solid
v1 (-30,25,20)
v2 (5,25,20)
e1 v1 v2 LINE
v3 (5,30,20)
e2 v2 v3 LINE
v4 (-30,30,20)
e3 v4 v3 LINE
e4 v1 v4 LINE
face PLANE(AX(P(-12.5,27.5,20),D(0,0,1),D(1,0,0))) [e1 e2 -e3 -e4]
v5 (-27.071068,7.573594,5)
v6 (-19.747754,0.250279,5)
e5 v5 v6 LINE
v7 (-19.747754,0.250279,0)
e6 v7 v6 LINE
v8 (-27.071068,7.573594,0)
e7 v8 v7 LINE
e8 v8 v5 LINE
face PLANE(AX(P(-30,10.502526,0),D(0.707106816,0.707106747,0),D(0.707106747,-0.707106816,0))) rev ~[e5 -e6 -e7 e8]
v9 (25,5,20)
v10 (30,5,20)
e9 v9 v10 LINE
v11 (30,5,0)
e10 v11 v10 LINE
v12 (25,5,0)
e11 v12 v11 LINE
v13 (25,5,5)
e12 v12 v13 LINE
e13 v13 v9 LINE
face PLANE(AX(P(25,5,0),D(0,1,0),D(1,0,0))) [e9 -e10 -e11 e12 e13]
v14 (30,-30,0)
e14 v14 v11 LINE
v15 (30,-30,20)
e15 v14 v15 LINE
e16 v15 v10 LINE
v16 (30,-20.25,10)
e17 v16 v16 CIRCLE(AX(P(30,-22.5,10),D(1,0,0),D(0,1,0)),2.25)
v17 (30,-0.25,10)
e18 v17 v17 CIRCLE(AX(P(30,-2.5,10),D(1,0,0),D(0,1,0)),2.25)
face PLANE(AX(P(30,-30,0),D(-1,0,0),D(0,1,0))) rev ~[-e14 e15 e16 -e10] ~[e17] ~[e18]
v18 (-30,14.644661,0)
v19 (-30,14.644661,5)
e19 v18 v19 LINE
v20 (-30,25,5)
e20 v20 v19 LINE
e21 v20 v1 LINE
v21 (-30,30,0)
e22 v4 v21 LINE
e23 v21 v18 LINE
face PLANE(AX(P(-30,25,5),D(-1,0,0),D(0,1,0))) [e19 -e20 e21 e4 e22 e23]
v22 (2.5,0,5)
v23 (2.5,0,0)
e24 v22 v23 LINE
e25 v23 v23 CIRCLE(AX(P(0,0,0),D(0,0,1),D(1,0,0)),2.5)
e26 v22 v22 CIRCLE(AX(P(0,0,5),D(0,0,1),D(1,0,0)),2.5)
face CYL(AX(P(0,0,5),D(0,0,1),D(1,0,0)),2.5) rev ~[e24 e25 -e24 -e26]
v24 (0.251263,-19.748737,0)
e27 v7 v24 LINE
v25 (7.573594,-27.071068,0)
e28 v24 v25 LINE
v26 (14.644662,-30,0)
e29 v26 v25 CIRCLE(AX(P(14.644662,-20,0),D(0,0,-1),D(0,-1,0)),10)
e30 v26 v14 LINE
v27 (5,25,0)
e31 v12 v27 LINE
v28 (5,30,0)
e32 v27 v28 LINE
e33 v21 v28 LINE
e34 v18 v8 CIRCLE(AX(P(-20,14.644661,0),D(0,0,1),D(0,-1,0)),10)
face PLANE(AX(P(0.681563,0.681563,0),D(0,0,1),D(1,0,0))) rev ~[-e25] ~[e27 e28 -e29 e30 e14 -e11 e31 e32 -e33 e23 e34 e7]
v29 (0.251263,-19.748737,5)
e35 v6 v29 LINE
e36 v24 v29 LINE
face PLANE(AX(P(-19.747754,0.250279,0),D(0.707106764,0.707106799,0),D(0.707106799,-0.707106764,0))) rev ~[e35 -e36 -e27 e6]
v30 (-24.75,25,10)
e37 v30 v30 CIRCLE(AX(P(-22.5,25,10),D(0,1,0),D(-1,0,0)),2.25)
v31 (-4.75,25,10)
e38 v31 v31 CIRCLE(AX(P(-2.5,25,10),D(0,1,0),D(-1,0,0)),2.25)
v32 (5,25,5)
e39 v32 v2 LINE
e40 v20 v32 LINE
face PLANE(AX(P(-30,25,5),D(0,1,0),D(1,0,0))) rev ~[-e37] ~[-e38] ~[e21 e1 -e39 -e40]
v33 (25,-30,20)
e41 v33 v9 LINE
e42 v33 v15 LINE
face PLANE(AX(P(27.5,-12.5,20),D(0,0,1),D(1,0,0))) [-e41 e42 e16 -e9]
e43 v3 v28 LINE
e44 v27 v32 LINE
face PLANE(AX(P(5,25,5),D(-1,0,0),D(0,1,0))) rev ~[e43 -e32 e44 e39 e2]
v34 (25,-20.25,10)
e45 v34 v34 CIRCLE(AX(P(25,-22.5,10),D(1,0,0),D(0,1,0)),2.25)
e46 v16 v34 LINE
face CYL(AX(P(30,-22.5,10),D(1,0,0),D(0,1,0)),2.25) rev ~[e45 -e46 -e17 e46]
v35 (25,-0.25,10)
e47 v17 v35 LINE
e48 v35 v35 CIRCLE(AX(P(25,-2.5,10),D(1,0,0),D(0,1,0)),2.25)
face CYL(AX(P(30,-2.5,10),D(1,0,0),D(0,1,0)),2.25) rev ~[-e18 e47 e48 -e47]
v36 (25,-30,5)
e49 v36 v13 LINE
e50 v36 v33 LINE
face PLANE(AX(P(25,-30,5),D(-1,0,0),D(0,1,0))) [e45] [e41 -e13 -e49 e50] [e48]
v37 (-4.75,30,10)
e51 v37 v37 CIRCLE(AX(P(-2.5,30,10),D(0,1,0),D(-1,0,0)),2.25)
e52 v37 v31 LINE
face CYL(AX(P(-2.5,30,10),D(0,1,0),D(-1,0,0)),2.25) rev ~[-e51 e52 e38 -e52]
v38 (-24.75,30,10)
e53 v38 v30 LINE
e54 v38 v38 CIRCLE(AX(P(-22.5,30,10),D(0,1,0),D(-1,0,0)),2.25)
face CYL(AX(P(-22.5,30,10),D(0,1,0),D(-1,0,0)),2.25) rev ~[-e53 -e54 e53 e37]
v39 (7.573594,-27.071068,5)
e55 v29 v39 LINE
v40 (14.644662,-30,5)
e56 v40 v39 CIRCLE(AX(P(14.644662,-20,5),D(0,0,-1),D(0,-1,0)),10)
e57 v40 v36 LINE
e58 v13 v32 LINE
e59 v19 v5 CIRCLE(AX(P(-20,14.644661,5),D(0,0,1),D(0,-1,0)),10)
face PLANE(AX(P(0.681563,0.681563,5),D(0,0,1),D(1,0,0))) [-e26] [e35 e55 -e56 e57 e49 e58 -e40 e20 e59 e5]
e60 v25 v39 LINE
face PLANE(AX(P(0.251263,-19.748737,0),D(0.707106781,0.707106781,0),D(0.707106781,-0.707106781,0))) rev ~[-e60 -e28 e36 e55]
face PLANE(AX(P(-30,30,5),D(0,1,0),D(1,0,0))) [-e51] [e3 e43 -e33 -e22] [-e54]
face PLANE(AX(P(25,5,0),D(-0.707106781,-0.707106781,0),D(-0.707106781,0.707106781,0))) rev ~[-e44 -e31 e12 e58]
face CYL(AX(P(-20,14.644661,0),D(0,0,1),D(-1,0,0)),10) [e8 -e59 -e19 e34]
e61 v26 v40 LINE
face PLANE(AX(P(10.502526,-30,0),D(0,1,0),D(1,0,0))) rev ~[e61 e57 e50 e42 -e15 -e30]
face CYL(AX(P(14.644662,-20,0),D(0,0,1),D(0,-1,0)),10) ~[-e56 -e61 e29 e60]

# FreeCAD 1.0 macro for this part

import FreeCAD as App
import Part
import Sketcher

V = App.Vector
Q = App.Units.Quantity


def edges_at(feature, points):
    """Names of the edges that pass closest to the given points."""
    edges = feature.Shape.Edges
    near = lambda p: min(range(len(edges)), key=lambda i: edges[i].distToShape(Part.Vertex(*p))[0])
    return sorted({f"Edge{near(p) + 1}" for p in points})


def add_polygon(sketch, points):
    """Adds a closed chain of lines whose ends are joined by coincident constraints."""
    first, n = sketch.GeometryCount, len(points)
    for a, b in zip(points, points[1:] + points[:1]):
        sketch.addGeometry(Part.LineSegment(App.Vector(*a, 0), App.Vector(*b, 0)), False)
    for i in range(n):
        sketch.addConstraint(Sketcher.Constraint("Coincident", first + i, 2, first + (i + 1) % n, 1))

doc = App.newDocument("Part")
body = doc.addObject("PartDesign::Body", "Body")

sketch1 = body.newObject("Sketcher::SketchObject", "Sketch")
sketch1.AttachmentSupport = (doc.getObject("XY_Plane"), [""])
sketch1.MapMode = "FlatFace"
add_polygon(sketch1, [(11, -30), (30, -30), (30, 5), (25, 5), (5, 25), (5, 30), (-30, 30), (-30, 11), (-20, 0), (0, -20)])
sketch1.addConstraint([
    Sketcher.Constraint("Horizontal", 0),
    Sketcher.Constraint("Vertical", 1),
    Sketcher.Constraint("Horizontal", 2),
    Sketcher.Constraint("Vertical", 4),
    Sketcher.Constraint("Horizontal", 5),
    Sketcher.Constraint("Vertical", 6),
    Sketcher.Constraint("Symmetric", 0, 2, 5, 2, -1, 1),
    Sketcher.Constraint("Parallel", 3, 7),
    Sketcher.Constraint("Parallel", 7, 8),
    Sketcher.Constraint("Parallel", 8, 9),
    Sketcher.Constraint("Equal", 5, 1),
    Sketcher.Constraint("Equal", 2, 4),
    Sketcher.Constraint("Equal", 0, 6),
    Sketcher.Constraint("DistanceX", 2, 2, 2, 1, Q("5 mm")),
    Sketcher.Constraint("DistanceX", 5, 2, 5, 1, Q("35 mm")),
    Sketcher.Constraint("DistanceX", -1, 1, 0, 2, Q("30 mm")),
    Sketcher.Constraint("Distance", 8, Q("28.28288 mm")),
    Sketcher.Constraint("DistanceX", 0, 1, 0, 2, Q("19.497474 mm")),
    Sketcher.Constraint("DistanceY", -1, 1, 7, 2, Q("0.250279 mm")),
])
pad1 = body.newObject("PartDesign::Pad", "Pad")
pad1.Profile = sketch1
pad1.Length = 5

sketch2 = body.newObject("Sketcher::SketchObject", "Sketch001")
sketch2.AttachmentSupport = (doc.getObject("XY_Plane"), [""])
sketch2.MapMode = "FlatFace"
sketch2.AttachmentOffset = App.Placement(V(0, 0, 5), App.Rotation())
add_polygon(sketch2, [(-30, 30), (-30, 25), (5, 25), (5, 30)])
add_polygon(sketch2, [(25, 5), (25, -30), (30, -30), (30, 5)])
sketch2.addConstraint([
    Sketcher.Constraint("Vertical", 0),
    Sketcher.Constraint("Horizontal", 1),
    Sketcher.Constraint("Vertical", 2),
    Sketcher.Constraint("Horizontal", 3),
    Sketcher.Constraint("Vertical", 4),
    Sketcher.Constraint("Horizontal", 5),
    Sketcher.Constraint("Vertical", 6),
    Sketcher.Constraint("Horizontal", 7),
    Sketcher.Constraint("Symmetric", 3, 2, 5, 2, -1, 1),
    Sketcher.Constraint("Equal", 7, 0),
    Sketcher.Constraint("Equal", 3, 4),
    Sketcher.Constraint("DistanceX", 1, 1, 1, 2, Q("35 mm")),
    Sketcher.Constraint("DistanceX", 5, 1, 5, 2, Q("5 mm")),
    Sketcher.Constraint("DistanceX", 0, 2, -1, 1, Q("30 mm")),
    Sketcher.Constraint("DistanceY", -1, 1, 0, 2, Q("25 mm")),
])
pad2 = body.newObject("PartDesign::Pad", "Pad001")
pad2.Profile = sketch2
pad2.Length = 15

sketch3 = body.newObject("Sketcher::SketchObject", "Sketch002")
sketch3.AttachmentSupport = (doc.getObject("XY_Plane"), [""])
sketch3.MapMode = "FlatFace"
sketch3.AttachmentOffset = App.Placement(V(0, 0, 5), App.Rotation())
sketch3.addGeometry(Part.Circle(V(0, 0, 0), V(0, 0, 1), 2.5), False)
sketch3.addConstraint([
    Sketcher.Constraint("Coincident", 0, 3, -1, 1),
    Sketcher.Constraint("Diameter", 0, Q("5 mm")),
])
pocket1 = body.newObject("PartDesign::Pocket", "Pocket")
pocket1.Profile = sketch3
pocket1.Type = "ThroughAll"

sketch4 = body.newObject("Sketcher::SketchObject", "Sketch003")
sketch4.AttachmentSupport = (doc.getObject("YZ_Plane"), [""])
sketch4.MapMode = "FlatFace"
sketch4.AttachmentOffset = App.Placement(V(0, 0, 30), App.Rotation())
sketch4.addGeometry([
    Part.Circle(V(-22.5, 10, 0), V(0, 0, 1), 2.2),
    Part.Circle(V(-2.5, 10, 0), V(0, 0, 1), 2.2),
], False)
sketch4.addConstraint([
    Sketcher.Constraint("Equal", 0, 1),
    Sketcher.Constraint("Horizontal", 0, 3, 1, 3),
    Sketcher.Constraint("Diameter", 0, Q("4.5 mm")),
    Sketcher.Constraint("DistanceY", -1, 1, 0, 3, Q("10 mm")),
    Sketcher.Constraint("DistanceX", 0, 3, 1, 3, Q("20 mm")),
    Sketcher.Constraint("DistanceX", 0, 3, -1, 1, Q("22.5 mm")),
])
pocket2 = body.newObject("PartDesign::Pocket", "Pocket001")
pocket2.Profile = sketch4
pocket2.Type = "ThroughAll"

sketch5 = body.newObject("Sketcher::SketchObject", "Sketch004")
sketch5.AttachmentSupport = (doc.getObject("XZ_Plane"), [""])
sketch5.MapMode = "FlatFace"
sketch5.AttachmentOffset = App.Placement(V(0, 0, -30), App.Rotation())
sketch5.addGeometry([
    Part.Circle(V(-2.5, 10, 0), V(0, 0, 1), 2.2),
    Part.Circle(V(-22.5, 10, 0), V(0, 0, 1), 2.2),
], False)
sketch5.addConstraint([
    Sketcher.Constraint("Equal", 0, 1),
    Sketcher.Constraint("Horizontal", 0, 3, 1, 3),
    Sketcher.Constraint("Diameter", 0, Q("4.5 mm")),
    Sketcher.Constraint("DistanceY", -1, 1, 0, 3, Q("10 mm")),
    Sketcher.Constraint("DistanceX", 1, 3, 0, 3, Q("20 mm")),
    Sketcher.Constraint("DistanceX", 0, 3, -1, 1, Q("2.5 mm")),
])
pocket3 = body.newObject("PartDesign::Pocket", "Pocket002")
pocket3.Profile = sketch5
pocket3.Type = "ThroughAll"
pocket3.Reversed = True
doc.recompute()

fillet = body.newObject("PartDesign::Fillet", "Fillet")
fillet.Base = (pocket3, edges_at(pocket3, [(-30, 10.503, 2.5), (10.503, -30, 2.5)]))
fillet.Radius = 10

doc.recompute()
